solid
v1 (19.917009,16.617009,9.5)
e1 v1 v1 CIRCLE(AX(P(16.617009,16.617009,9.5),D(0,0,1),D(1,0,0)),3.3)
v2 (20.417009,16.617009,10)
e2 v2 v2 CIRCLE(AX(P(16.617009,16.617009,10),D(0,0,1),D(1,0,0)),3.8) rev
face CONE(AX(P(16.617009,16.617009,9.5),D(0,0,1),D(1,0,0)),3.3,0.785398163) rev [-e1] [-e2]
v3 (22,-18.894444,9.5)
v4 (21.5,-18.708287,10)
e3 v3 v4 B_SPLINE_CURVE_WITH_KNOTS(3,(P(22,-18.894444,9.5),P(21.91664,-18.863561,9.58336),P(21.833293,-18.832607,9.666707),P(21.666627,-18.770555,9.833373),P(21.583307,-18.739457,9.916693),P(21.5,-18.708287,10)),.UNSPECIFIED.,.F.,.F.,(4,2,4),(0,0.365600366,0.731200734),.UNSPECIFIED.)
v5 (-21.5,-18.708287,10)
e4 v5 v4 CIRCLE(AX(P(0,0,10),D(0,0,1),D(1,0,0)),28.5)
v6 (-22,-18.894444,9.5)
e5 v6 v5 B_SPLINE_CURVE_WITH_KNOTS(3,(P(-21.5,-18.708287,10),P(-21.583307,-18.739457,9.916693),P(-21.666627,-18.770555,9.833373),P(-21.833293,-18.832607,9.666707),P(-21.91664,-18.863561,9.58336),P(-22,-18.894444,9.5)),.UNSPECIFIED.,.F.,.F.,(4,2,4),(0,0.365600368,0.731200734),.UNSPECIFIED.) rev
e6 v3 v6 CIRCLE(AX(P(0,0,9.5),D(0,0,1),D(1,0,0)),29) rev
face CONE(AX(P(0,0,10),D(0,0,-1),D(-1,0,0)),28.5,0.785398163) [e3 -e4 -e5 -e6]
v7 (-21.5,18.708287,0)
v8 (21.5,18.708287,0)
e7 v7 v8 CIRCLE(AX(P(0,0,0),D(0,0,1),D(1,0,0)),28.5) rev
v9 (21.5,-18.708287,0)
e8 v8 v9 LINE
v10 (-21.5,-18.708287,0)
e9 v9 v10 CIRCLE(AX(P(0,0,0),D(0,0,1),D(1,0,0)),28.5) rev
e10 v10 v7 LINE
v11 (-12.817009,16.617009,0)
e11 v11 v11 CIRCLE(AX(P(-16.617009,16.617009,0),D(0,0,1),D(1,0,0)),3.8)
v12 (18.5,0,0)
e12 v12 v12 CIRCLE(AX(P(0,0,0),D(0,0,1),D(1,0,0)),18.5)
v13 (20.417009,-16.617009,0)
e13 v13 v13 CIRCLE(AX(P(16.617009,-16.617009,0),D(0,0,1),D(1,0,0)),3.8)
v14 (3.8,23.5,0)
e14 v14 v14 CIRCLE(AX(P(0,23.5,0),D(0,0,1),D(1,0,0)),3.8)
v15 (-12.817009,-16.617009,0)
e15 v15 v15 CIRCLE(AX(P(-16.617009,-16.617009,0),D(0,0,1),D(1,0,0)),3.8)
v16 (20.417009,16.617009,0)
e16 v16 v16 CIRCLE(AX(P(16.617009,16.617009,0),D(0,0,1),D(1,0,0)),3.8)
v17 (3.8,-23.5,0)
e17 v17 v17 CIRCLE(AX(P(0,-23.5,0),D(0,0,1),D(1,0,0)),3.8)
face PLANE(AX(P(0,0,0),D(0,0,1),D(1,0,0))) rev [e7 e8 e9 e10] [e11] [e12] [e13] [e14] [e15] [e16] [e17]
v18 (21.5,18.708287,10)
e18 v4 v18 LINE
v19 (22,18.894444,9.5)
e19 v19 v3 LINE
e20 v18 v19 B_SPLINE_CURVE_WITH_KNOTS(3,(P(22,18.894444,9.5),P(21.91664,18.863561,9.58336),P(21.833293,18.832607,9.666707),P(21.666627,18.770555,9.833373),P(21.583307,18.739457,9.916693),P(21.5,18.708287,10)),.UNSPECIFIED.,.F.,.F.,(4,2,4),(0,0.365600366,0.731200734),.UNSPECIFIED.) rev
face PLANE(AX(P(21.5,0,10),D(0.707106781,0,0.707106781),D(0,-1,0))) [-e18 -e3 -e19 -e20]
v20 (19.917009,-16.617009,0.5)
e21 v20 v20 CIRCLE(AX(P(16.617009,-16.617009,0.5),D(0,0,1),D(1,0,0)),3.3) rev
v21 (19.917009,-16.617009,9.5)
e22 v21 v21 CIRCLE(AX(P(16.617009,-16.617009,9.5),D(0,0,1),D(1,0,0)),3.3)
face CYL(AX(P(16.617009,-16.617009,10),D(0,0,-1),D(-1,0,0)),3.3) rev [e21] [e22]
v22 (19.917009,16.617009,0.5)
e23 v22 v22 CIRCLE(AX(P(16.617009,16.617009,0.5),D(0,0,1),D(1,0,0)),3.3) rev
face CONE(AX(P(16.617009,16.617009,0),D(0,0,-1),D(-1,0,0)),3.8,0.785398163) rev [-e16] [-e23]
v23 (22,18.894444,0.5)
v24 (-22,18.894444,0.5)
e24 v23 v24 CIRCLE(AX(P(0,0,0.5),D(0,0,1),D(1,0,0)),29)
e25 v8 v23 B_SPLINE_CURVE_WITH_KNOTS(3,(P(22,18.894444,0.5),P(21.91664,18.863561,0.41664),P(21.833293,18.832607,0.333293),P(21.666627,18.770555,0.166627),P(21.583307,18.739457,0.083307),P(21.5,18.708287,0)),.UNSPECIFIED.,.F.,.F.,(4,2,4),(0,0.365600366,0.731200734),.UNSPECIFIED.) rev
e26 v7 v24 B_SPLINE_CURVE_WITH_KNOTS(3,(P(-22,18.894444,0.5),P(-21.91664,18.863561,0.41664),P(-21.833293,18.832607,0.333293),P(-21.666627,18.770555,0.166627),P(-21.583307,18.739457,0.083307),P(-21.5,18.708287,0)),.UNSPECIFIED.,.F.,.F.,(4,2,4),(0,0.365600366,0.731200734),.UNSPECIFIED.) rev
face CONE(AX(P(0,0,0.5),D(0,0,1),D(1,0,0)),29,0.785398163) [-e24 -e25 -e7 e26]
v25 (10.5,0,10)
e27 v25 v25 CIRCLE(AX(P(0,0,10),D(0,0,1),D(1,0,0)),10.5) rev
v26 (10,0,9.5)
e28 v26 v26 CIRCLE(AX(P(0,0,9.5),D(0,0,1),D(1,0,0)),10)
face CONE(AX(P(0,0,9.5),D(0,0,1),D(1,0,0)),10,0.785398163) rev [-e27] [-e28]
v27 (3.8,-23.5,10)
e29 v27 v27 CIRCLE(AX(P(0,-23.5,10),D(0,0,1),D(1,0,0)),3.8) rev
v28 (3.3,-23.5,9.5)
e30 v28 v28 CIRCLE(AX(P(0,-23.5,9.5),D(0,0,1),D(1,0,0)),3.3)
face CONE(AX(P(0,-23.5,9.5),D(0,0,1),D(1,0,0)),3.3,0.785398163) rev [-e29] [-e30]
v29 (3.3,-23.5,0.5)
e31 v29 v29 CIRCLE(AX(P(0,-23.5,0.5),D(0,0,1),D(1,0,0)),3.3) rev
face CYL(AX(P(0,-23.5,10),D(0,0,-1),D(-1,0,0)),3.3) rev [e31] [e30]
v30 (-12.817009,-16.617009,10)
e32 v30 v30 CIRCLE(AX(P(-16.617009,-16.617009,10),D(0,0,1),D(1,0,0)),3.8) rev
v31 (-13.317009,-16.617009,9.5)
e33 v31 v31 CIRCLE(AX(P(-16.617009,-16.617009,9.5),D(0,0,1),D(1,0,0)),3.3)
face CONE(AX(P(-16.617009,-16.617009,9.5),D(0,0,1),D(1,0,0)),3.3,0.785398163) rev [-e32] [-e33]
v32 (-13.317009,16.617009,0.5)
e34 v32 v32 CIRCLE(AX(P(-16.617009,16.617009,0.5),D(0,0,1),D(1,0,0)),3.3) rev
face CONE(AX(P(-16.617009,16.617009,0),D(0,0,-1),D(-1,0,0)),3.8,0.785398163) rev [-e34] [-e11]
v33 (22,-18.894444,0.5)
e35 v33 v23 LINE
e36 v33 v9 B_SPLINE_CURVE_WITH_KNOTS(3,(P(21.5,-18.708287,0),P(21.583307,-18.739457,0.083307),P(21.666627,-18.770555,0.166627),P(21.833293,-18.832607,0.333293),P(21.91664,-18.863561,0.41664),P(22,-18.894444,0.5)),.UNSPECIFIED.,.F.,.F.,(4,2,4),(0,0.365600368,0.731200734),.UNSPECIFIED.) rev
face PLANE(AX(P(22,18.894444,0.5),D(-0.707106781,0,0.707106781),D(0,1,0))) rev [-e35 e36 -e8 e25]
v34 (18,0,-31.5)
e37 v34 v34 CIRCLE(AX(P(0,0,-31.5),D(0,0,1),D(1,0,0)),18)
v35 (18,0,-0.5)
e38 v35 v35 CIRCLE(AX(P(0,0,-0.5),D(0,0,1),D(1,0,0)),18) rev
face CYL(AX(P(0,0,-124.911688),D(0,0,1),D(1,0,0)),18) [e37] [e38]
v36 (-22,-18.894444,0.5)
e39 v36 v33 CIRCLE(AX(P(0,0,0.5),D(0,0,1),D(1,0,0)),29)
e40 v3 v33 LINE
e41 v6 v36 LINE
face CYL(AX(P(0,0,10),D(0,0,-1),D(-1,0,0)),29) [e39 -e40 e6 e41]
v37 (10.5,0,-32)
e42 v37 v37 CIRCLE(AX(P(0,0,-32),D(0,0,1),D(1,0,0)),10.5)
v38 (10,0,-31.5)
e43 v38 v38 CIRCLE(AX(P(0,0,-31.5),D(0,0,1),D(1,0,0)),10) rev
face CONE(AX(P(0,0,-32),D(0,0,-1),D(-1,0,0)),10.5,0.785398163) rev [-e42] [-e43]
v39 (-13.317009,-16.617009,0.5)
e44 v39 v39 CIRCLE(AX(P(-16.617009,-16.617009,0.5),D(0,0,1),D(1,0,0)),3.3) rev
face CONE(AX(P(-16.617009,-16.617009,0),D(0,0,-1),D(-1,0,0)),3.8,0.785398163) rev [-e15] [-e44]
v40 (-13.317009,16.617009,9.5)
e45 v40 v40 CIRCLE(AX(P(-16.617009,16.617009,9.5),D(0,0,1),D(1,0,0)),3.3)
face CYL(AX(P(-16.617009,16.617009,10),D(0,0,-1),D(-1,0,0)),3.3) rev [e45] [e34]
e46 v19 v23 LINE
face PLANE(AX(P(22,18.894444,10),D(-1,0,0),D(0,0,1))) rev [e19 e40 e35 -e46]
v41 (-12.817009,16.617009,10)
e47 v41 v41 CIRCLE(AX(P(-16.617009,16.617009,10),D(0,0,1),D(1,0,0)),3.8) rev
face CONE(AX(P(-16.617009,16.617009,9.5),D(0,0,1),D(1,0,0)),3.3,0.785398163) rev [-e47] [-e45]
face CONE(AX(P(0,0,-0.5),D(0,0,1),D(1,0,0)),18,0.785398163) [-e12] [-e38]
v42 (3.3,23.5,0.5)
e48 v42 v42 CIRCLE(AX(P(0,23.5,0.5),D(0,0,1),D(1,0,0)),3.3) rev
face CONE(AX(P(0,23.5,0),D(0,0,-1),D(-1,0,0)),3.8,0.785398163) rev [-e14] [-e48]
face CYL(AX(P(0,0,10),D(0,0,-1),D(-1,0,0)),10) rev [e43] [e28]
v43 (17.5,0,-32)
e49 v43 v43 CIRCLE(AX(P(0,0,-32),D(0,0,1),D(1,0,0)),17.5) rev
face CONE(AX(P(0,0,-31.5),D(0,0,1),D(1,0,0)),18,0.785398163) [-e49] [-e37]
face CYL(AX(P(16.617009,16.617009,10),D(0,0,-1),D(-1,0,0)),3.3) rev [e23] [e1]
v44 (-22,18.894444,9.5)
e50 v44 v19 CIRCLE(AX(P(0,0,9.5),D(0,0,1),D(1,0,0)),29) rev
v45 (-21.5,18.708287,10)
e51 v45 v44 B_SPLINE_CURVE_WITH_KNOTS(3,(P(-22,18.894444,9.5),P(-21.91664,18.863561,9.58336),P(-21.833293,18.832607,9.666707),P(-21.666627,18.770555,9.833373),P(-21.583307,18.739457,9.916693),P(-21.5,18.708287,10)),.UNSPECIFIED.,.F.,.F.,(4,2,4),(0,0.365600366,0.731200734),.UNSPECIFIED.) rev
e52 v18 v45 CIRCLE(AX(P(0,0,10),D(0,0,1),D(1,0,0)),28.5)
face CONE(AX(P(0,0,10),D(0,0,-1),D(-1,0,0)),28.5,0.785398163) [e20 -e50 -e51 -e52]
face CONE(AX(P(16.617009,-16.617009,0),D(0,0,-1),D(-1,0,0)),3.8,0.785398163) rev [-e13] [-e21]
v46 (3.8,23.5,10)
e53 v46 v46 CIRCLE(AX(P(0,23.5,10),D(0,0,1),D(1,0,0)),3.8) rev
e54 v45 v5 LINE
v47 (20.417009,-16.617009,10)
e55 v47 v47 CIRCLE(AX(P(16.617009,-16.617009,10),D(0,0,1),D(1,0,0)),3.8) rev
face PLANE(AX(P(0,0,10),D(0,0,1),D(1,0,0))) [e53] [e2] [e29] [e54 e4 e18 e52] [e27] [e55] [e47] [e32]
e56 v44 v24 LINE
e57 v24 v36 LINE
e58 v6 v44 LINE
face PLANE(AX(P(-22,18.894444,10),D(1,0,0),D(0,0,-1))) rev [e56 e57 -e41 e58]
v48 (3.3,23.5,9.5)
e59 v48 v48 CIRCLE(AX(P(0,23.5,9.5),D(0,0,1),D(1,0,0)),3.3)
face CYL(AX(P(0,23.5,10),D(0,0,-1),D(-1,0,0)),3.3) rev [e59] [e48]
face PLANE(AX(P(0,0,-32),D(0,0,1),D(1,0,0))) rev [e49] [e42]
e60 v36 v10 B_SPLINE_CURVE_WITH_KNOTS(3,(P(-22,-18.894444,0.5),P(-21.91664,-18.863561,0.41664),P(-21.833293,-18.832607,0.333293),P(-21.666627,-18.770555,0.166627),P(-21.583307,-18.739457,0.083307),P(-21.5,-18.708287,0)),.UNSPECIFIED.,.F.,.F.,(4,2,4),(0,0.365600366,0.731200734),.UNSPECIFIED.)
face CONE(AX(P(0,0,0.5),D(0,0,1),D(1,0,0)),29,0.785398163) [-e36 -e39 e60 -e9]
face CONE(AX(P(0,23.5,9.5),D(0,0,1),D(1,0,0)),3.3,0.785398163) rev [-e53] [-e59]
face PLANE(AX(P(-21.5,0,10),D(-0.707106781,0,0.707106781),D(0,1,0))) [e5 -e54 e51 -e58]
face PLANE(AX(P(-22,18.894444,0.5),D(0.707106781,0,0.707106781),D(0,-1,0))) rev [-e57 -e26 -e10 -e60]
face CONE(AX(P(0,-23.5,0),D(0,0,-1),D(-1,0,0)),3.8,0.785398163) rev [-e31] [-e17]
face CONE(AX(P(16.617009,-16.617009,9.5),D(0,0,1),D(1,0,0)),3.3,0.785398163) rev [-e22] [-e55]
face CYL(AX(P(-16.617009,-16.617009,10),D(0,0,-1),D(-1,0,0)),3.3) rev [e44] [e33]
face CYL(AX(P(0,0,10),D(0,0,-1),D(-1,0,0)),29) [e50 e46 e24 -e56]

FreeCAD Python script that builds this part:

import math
import FreeCAD as App
import Part
import Sketcher

V = App.Vector


def edges_at(feature, points):
    """Names of the edges that pass closest to the given points."""
    edges = feature.Shape.Edges
    near = lambda p: min(range(len(edges)), key=lambda i: edges[i].distToShape(Part.Vertex(*p))[0])
    return sorted({f"Edge{near(p) + 1}" for p in points})

doc = App.newDocument("Part")
body = doc.addObject("PartDesign::Body", "Body")

# Sketch on XY plane
sketch1 = body.newObject("Sketcher::SketchObject", "Sketch")
sketch1.AttachmentSupport = (doc.getObject("XY_Plane"), [""])
sketch1.MapMode = "FlatFace"
sketch1.addGeometry([
    Part.LineSegment(V(22, -18.9, 0), V(22, 18.9, 0)),  # 0
    Part.ArcOfCircle(Part.Circle(V(0, 0, 0), V(0, 0, 1), 29), math.radians(41), math.radians(139)),  # 1
    Part.LineSegment(V(-22, 18.9, 0), V(-22, -18.9, 0)),  # 2
    Part.ArcOfCircle(Part.Circle(V(0, 0, 0), V(0, 0, 1), 29), math.radians(-139), math.radians(-41)),  # 3
    Part.Circle(V(-16.6, -16.6, 0), V(0, 0, 1), 3.3),  # 4
    Part.Circle(V(-16.6, 16.6, 0), V(0, 0, 1), 3.3),  # 5
    Part.Circle(V(0, -23.5, 0), V(0, 0, 1), 3.3),  # 6
    Part.Circle(V(0, 0, 0), V(0, 0, 1), 10),  # 7
    Part.Circle(V(16.6, -16.6, 0), V(0, 0, 1), 3.3),  # 8
    Part.Circle(V(0, 23.5, 0), V(0, 0, 1), 3.3),  # 9
    Part.Circle(V(16.6, 16.6, 0), V(0, 0, 1), 3.3),  # 10
], False)
sketch1.addConstraint([
    Sketcher.Constraint("Coincident", 0, 2, 1, 1),
    Sketcher.Constraint("Coincident", 1, 2, 2, 1),
    Sketcher.Constraint("Coincident", 2, 2, 3, 1),
    Sketcher.Constraint("Coincident", 3, 2, 0, 1),
    Sketcher.Constraint("Vertical", 0),
    Sketcher.Constraint("Vertical", 2),
    Sketcher.Constraint("Coincident", 1, 3, -1, 1),
    Sketcher.Constraint("Coincident", 3, 3, -1, 1),
    Sketcher.Constraint("Coincident", 7, 3, -1, 1),
    Sketcher.Constraint("Equal", 1, 3),
    Sketcher.Constraint("Equal", 4, 5),
    Sketcher.Constraint("Equal", 5, 6),
    Sketcher.Constraint("Equal", 6, 8),
    Sketcher.Constraint("Equal", 8, 9),
    Sketcher.Constraint("Equal", 9, 10),
    Sketcher.Constraint("Symmetric", 5, 3, 8, 3, -1, 1),
    Sketcher.Constraint("Symmetric", 6, 3, 9, 3, -1, 1),
    Sketcher.Constraint("Symmetric", 4, 3, 10, 3, -1, 1),
    Sketcher.Constraint("Symmetric", 4, 3, 8, 3, -2),
    Sketcher.Constraint("PointOnObject", 6, 3, -2),
    Sketcher.Constraint("Horizontal", 0, 2, 1, 2),
    Sketcher.Constraint("Diameter", 7, 20.0),
    Sketcher.Constraint("Radius", 1, 29.0),
    Sketcher.Constraint("Diameter", 4, 6.6),
    Sketcher.Constraint("DistanceX", -1, 1, 0, 2, 22.0),
    Sketcher.Constraint("DistanceY", 6, 3, -1, 1, 23.5),
    Sketcher.Constraint("DistanceX", 4, 3, -1, 1, 16.617009),
    Sketcher.Constraint("DistanceY", 4, 3, -1, 1, 16.617009),
])
pad1 = body.newObject("PartDesign::Pad", "Pad")
pad1.Profile = sketch1
pad1.Length = 10

# Sketch on XY plane
sketch2 = body.newObject("Sketcher::SketchObject", "Sketch001")
sketch2.AttachmentSupport = (doc.getObject("XY_Plane"), [""])
sketch2.MapMode = "FlatFace"
sketch2.AttachmentOffset = App.Placement(V(0, 0, -32), App.Rotation())
sketch2.addGeometry([
    Part.Circle(V(0, 0, 0), V(0, 0, 1), 18),
    Part.Circle(V(0, 0, 0), V(0, 0, 1), 10),
], False)
sketch2.addConstraint([
    Sketcher.Constraint("Coincident", 0, 3, -1, 1),
    Sketcher.Constraint("Coincident", 1, 3, -1, 1),
    Sketcher.Constraint("Diameter", 0, 36.0),
    Sketcher.Constraint("Diameter", 1, 20.0),
])
pad2 = body.newObject("PartDesign::Pad", "Pad001")
pad2.Profile = sketch2
pad2.Length = 32
doc.recompute()

chamfer = body.newObject("PartDesign::Chamfer", "Chamfer")
chamfer.Base = (pad2, edges_at(pad2, [
    (0, 29, 10),
    (-10, 0, 10),
    (-22, 0, 10),
    (-3.3, 23.5, 0),
    (-3.3, 23.5, 10),
    (13.317, 16.617, 0),
    (13.317, 16.617, 10),
    (13.317, -16.617, 0),
    (13.317, -16.617, 10),
    (-3.3, -23.5, 0),
    (-3.3, -23.5, 10),
    (-19.917, -16.617, 0),
    (-19.917, -16.617, 10),
    (-19.917, 16.617, 0),
    (-19.917, 16.617, 10),
    (0, -29, 10),
    (-18, 0, 0),
    (-18, 0, -32),
    (-10, 0, -32),
    (-22, 0, 0),
    (0, 29, 0),
    (22, 0, 0),
    (0, -29, 0),
    (22, 0, 10),
]))
chamfer.Size = 0.5

doc.recompute()
